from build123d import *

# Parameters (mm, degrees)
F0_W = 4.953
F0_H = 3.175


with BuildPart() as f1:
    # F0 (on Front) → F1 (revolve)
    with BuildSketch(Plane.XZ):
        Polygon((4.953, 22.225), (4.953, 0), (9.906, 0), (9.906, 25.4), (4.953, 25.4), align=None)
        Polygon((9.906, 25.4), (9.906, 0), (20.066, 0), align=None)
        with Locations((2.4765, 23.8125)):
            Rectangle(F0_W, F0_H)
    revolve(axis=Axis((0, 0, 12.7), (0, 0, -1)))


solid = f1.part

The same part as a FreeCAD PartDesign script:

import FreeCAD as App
import Part
import Sketcher

V = App.Vector
Q = App.Units.Quantity


def add_polygon(sketch, points):
    """Adds a closed chain of lines whose ends are joined by coincident constraints."""
    first, n = sketch.GeometryCount, len(points)
    for a, b in zip(points, points[1:] + points[:1]):
        sketch.addGeometry(Part.LineSegment(App.Vector(*a, 0), App.Vector(*b, 0)), False)
    for i in range(n):
        sketch.addConstraint(Sketcher.Constraint("Coincident", first + i, 2, first + (i + 1) % n, 1))

doc = App.newDocument("Part")
body = doc.addObject("PartDesign::Body", "Body")

# Sketch on XZ plane
sketch1 = body.newObject("Sketcher::SketchObject", "Sketch")
sketch1.AttachmentSupport = (doc.getObject("XZ_Plane"), [""])
sketch1.MapMode = "FlatFace"
add_polygon(sketch1, [(5, 0), (20.1, 0), (9.9, 25.4), (0, 25.4), (0, 22.2), (5, 22.2)])  # lines 0-5
sketch1.addConstraint([
    Sketcher.Constraint("Horizontal", 0),
    Sketcher.Constraint("Horizontal", 2),
    Sketcher.Constraint("Vertical", 3),
    Sketcher.Constraint("Horizontal", 4),
    Sketcher.Constraint("Vertical", 5),
    Sketcher.Constraint("PointOnObject", 0, 2, -1),
    Sketcher.Constraint("PointOnObject", 2, 2, -2),
    Sketcher.Constraint("DistanceY", -1, 1, 1, 2, Q("1 in")),
    Sketcher.Constraint("DistanceX", 2, 2, 2, 1, Q("0.39 in")),
    Sketcher.Constraint("DistanceX", 1, 2, 0, 2, Q("0.4 in")),
    Sketcher.Constraint("DistanceX", 0, 1, 0, 2, Q("0.595 in")),
    Sketcher.Constraint("DistanceY", 3, 2, 3, 1, Q("0.125 in")),
])
revolution = body.newObject("PartDesign::Revolution", "Revolution")
revolution.Profile = sketch1
revolution.ReferenceAxis = (sketch1, ["V_Axis"])
revolution.Angle = 360

doc.recompute()
